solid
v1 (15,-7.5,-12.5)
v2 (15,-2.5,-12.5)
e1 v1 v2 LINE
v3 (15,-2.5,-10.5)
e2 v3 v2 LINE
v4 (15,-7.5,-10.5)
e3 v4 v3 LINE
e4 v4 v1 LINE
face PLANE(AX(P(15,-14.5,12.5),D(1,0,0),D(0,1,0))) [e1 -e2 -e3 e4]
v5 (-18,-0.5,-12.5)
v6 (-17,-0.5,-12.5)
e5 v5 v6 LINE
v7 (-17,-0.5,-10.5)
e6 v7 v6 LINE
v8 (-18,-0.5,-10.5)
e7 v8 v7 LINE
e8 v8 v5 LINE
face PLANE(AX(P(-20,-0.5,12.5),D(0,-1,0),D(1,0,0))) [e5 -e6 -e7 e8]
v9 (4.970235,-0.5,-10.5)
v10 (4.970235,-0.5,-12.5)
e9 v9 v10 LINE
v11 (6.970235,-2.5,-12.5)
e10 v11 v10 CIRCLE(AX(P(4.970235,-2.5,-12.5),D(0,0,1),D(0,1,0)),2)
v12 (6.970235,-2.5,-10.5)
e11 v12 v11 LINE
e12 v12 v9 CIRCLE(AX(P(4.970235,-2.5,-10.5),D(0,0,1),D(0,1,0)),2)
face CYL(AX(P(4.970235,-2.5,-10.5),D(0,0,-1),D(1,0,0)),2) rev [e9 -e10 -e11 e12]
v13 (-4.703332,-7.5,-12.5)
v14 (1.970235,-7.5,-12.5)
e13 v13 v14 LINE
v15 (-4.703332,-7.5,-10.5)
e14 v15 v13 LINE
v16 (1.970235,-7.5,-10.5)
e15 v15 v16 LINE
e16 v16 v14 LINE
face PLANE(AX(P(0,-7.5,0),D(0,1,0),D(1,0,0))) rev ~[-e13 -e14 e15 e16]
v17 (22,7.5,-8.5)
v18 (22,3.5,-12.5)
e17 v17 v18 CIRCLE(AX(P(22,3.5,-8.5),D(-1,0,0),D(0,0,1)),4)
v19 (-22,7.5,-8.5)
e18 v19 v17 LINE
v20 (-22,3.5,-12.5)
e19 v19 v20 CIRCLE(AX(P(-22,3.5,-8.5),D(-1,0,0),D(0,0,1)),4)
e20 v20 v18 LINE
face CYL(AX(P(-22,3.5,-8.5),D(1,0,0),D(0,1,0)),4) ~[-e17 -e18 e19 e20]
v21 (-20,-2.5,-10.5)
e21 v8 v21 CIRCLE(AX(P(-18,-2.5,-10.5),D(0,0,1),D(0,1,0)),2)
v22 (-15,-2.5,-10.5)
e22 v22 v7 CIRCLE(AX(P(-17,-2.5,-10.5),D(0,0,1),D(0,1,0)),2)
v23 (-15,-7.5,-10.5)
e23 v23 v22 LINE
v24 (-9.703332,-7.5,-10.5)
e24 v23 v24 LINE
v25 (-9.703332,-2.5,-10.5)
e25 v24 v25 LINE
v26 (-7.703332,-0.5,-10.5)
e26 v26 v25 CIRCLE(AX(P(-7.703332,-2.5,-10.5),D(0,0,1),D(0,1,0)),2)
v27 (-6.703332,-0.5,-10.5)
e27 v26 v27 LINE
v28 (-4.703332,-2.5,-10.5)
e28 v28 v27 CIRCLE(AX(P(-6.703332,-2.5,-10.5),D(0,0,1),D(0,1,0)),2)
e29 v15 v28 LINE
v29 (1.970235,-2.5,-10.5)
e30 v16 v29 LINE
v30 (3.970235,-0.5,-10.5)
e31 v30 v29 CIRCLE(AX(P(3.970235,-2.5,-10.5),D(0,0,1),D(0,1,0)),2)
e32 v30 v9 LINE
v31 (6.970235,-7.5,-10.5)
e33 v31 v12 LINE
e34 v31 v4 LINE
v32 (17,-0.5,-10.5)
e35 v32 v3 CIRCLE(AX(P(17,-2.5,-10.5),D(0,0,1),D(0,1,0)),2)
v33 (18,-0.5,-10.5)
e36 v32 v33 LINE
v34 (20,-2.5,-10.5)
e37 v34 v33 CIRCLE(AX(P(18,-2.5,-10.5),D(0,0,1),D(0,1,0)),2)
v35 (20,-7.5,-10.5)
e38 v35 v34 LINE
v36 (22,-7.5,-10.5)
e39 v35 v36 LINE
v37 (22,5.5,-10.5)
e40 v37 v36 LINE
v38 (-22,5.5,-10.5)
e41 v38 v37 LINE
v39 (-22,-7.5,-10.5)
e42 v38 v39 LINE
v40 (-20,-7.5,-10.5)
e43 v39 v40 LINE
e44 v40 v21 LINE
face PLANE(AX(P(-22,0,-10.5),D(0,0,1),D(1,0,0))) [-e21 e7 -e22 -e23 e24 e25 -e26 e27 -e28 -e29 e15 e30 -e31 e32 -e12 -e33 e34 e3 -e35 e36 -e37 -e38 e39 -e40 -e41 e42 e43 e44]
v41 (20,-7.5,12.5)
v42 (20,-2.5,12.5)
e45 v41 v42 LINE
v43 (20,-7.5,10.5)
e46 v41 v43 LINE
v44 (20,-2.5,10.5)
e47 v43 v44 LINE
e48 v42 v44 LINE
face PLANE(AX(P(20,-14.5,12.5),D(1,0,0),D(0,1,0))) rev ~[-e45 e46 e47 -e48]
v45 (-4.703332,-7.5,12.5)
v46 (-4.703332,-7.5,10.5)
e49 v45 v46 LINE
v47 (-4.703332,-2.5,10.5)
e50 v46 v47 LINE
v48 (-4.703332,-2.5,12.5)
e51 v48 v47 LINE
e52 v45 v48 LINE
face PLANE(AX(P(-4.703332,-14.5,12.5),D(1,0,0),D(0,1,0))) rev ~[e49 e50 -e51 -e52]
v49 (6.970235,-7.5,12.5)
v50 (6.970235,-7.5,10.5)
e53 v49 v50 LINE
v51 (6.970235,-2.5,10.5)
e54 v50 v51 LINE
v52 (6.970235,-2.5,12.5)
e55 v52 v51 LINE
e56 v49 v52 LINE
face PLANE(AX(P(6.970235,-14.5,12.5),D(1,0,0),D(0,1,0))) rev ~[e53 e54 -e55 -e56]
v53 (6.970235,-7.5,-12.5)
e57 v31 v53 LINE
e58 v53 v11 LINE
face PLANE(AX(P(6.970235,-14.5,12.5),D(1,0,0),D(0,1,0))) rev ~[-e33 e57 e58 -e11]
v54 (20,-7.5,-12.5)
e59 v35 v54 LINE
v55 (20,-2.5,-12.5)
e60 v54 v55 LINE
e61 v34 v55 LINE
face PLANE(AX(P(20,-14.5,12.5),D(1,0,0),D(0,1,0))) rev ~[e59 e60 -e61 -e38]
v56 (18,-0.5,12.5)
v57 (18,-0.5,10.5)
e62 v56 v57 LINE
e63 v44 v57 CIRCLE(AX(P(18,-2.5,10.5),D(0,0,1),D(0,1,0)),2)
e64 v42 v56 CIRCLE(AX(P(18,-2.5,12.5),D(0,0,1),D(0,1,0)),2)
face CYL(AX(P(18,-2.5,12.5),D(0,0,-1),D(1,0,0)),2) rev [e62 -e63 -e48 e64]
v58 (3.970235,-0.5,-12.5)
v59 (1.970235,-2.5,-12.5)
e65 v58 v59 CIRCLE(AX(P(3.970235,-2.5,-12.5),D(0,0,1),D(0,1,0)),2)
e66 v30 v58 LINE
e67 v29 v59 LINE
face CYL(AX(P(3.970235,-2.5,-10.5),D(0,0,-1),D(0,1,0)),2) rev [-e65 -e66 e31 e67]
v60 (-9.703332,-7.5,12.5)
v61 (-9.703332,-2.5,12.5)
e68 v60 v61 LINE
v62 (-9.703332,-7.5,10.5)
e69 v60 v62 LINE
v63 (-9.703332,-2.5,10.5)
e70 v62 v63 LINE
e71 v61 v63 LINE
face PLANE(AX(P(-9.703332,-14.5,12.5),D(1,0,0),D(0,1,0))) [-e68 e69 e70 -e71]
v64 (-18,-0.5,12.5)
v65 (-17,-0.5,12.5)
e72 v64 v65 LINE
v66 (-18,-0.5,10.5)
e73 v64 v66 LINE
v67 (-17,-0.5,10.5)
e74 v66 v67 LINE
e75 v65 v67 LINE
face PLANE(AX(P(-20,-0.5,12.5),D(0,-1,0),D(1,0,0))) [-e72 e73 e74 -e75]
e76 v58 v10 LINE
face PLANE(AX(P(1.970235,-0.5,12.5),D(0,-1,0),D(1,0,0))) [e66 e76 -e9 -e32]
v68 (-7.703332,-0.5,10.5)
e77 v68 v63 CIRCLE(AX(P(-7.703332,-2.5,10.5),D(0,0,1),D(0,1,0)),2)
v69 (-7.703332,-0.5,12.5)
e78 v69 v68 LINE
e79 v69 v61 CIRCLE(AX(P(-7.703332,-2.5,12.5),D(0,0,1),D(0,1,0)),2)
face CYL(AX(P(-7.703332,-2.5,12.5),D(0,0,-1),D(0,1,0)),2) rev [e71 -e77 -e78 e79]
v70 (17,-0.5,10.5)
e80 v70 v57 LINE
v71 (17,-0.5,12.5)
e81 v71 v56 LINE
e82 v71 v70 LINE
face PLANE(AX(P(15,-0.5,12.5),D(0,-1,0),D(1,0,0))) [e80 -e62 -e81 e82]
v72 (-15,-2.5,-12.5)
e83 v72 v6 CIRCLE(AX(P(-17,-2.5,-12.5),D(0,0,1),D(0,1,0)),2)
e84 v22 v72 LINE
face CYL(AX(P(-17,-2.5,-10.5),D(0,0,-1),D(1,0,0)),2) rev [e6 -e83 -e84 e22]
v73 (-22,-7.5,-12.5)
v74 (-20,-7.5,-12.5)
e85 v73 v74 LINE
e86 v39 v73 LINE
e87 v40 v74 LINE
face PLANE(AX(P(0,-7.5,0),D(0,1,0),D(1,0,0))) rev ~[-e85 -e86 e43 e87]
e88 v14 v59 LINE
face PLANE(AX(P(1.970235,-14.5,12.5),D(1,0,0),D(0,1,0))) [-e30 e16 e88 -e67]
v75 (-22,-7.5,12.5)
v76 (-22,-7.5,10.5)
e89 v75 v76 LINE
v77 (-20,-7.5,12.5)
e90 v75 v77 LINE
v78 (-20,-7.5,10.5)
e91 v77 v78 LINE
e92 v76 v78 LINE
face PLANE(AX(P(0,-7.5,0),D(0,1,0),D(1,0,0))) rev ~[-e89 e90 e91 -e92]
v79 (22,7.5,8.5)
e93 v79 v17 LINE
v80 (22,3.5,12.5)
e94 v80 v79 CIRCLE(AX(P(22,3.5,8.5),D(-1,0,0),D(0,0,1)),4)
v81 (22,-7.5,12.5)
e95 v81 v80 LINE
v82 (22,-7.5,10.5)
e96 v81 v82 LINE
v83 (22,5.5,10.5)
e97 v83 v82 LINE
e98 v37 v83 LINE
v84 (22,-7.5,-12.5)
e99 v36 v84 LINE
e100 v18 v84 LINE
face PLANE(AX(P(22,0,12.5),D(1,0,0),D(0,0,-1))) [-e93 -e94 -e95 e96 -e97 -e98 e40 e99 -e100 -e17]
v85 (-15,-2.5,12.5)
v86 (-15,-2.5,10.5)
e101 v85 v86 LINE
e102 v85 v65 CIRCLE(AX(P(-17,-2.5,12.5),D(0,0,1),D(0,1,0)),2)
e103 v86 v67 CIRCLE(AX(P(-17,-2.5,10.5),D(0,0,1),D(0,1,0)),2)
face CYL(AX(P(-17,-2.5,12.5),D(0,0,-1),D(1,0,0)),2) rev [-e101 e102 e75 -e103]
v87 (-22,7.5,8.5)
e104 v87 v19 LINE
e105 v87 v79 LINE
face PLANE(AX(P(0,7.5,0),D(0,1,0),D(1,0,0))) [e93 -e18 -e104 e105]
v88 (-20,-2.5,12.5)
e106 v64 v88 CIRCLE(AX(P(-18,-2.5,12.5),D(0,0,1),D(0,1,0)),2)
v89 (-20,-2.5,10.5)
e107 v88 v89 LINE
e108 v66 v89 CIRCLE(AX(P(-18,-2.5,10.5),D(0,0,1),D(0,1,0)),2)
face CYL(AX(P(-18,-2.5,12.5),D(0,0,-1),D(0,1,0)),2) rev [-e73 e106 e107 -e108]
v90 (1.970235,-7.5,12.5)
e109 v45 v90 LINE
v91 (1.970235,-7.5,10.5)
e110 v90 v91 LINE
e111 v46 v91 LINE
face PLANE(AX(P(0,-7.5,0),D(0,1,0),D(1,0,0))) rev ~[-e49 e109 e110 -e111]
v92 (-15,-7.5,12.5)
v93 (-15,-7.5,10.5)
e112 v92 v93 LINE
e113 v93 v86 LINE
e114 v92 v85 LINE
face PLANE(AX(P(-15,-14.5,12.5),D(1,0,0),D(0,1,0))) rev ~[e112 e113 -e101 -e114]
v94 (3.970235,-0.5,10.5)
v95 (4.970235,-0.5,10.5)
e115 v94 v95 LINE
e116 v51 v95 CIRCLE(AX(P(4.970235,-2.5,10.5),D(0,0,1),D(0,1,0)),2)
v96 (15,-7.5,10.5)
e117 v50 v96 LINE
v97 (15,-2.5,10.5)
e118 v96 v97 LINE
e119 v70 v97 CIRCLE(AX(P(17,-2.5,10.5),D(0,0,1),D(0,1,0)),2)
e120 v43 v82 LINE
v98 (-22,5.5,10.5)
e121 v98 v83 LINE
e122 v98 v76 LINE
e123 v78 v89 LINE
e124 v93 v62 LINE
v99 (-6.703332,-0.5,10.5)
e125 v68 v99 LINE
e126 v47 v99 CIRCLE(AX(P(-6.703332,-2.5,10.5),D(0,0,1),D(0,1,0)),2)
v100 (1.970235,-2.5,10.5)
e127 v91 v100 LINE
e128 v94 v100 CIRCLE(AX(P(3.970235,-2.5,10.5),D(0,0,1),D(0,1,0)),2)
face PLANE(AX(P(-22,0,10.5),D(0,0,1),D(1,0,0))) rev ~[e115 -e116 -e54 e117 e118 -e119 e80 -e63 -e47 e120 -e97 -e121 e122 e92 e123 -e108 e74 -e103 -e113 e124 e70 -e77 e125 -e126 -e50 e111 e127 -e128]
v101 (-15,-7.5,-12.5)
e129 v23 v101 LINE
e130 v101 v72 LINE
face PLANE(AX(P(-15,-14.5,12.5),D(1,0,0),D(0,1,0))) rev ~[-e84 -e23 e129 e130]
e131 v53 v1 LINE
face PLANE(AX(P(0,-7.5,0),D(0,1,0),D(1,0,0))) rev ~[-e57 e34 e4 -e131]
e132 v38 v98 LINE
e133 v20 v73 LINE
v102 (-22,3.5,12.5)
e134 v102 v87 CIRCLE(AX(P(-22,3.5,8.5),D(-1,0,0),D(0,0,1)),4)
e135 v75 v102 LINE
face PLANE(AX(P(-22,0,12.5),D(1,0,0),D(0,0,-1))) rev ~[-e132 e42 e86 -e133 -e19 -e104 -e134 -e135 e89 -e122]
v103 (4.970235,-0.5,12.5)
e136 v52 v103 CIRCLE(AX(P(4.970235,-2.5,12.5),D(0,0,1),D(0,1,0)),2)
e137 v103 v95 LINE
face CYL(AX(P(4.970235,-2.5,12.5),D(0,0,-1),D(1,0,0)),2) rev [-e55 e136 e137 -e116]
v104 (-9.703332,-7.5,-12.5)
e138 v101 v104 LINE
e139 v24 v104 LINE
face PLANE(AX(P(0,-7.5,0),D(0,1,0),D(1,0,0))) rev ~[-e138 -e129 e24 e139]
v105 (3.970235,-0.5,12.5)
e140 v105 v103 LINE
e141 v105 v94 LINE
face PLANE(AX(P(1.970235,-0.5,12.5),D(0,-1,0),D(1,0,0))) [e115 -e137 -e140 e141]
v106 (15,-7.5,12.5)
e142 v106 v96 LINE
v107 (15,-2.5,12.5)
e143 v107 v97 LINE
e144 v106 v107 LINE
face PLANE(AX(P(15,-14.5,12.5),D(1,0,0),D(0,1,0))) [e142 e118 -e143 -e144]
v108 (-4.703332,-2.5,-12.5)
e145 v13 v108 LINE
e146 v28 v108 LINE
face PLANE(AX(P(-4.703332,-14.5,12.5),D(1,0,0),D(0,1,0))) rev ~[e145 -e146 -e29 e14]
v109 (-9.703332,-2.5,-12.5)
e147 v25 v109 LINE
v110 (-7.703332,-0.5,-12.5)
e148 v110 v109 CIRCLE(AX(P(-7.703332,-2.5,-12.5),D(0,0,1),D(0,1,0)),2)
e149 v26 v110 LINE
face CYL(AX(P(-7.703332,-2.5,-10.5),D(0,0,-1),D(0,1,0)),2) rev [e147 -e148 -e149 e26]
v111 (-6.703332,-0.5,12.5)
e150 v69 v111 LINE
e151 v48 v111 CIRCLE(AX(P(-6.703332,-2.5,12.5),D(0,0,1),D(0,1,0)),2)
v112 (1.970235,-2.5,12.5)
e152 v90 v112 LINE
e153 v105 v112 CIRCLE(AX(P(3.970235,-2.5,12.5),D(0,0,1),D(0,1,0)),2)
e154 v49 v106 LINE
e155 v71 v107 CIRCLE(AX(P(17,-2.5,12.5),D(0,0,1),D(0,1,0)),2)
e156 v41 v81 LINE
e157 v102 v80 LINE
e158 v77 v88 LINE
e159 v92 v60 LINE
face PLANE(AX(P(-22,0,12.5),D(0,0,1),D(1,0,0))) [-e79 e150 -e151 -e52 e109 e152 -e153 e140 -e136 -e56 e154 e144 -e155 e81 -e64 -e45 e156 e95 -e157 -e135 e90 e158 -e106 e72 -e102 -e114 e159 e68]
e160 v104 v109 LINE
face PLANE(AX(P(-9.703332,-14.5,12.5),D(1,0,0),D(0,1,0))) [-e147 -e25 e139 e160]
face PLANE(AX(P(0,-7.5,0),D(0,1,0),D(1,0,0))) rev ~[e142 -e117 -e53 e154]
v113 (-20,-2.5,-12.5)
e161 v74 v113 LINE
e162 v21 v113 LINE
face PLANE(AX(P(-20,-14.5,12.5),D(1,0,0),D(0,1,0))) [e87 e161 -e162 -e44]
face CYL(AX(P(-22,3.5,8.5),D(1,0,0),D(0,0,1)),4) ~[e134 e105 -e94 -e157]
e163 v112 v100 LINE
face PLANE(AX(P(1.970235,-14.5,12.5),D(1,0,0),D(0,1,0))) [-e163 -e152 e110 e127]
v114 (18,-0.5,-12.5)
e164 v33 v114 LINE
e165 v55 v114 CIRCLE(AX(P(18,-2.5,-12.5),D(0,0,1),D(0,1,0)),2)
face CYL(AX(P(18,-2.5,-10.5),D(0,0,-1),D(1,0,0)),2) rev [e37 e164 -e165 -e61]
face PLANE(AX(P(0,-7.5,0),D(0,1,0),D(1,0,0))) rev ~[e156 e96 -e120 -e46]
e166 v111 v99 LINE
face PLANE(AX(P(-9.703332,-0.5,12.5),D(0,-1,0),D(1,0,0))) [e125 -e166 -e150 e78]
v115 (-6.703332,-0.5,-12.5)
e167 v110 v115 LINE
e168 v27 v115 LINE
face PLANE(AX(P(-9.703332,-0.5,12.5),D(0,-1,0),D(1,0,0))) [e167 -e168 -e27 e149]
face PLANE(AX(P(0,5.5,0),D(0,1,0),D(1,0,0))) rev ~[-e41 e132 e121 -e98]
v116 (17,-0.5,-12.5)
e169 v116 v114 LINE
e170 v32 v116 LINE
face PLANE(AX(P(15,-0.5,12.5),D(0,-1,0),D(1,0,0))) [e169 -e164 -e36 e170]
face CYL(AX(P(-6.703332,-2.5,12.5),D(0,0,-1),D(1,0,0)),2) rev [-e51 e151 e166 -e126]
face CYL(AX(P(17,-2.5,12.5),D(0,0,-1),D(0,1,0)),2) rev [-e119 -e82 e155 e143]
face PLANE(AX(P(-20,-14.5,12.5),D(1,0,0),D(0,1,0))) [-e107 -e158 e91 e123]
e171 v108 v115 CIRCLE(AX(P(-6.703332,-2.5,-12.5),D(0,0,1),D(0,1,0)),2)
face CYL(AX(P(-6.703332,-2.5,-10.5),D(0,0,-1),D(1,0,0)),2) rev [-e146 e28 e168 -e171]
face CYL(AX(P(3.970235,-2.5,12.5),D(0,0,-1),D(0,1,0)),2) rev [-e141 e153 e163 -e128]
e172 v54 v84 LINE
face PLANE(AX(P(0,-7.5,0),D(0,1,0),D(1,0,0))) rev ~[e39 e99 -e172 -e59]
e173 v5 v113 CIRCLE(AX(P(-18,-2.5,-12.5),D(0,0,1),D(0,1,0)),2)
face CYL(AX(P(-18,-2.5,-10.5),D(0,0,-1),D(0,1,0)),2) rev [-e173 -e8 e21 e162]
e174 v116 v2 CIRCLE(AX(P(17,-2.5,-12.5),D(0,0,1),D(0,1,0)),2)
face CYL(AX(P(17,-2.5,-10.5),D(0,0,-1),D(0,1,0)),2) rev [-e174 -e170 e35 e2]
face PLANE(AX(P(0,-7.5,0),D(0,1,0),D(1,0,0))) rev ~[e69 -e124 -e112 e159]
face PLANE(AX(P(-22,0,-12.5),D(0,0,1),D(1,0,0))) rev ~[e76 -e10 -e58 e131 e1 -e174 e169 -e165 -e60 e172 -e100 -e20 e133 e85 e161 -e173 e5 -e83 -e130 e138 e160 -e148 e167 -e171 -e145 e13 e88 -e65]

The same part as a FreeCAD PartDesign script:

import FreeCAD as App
import Part
import Sketcher
from FreeCAD import Vector
Q = App.Units.Quantity


def edges_at(feature, points):
    """Names of the edges that pass closest to the given points."""
    edges = feature.Shape.Edges
    near = lambda p: min(range(len(edges)), key=lambda i: edges[i].distToShape(Part.Vertex(*p))[0])
    return sorted({f"Edge{near(p) + 1}" for p in points})


def faces_at(feature, points):
    """Names of the faces that lie closest to the given points."""
    faces = feature.Shape.Faces
    near = lambda p: min(range(len(faces)), key=lambda i: faces[i].distToShape(Part.Vertex(*p))[0])
    return sorted({f"Face{near(p) + 1}" for p in points})


def add_polygon(sketch, points):
    """Adds a closed chain of lines whose ends are joined by coincident constraints."""
    first, n = sketch.GeometryCount, len(points)
    for a, b in zip(points, points[1:] + points[:1]):
        sketch.addGeometry(Part.LineSegment(App.Vector(*a, 0), App.Vector(*b, 0)), False)
    for i in range(n):
        sketch.addConstraint(Sketcher.Constraint("Coincident", first + i, 2, first + (i + 1) % n, 1))

doc = App.newDocument("Part")
body = doc.addObject("PartDesign::Body", "Body")

# Sketch on XZ plane
sketch1 = doc.addObject("Sketcher::SketchObject", "Sketch")
body.addObject(sketch1)
sketch1.AttachmentSupport = (doc.XZ_Plane, [""])
sketch1.MapMode = "FlatFace"
add_polygon(sketch1, [(-22, -12), (-22, 12), (22, 12), (22, -12)])  # lines 0-3
sketch1.addConstraint(Sketcher.Constraint("Vertical", 0))
sketch1.addConstraint(Sketcher.Constraint("Horizontal", 1))
sketch1.addConstraint(Sketcher.Constraint("Vertical", 2))
sketch1.addConstraint(Sketcher.Constraint("Horizontal", 3))
sketch1.addConstraint(Sketcher.Constraint("Symmetric", 0, 2, 2, 2, -1, 1))
sketch1.addConstraint(Sketcher.Constraint("DistanceX", 1, 1, 1, 2, Q("44 mm")))
sketch1.addConstraint(Sketcher.Constraint("DistanceY", 0, 1, 0, 2, Q("25 mm")))
pad1 = doc.addObject("PartDesign::Pad", "Pad")
body.addObject(pad1)
pad1.Profile = sketch1
pad1.Length = 15
pad1.Midplane = True
doc.recompute()

thickness = doc.addObject("PartDesign::Thickness", "Thickness")
body.addObject(thickness)
thickness.Base = (pad1, faces_at(pad1, [(0, -7.5, 0), (-22, 0, 0), (22, 0, 0)]))
thickness.Value = 2
thickness.Reversed = True
thickness.Join = "Intersection"

# Sketch on XY plane
sketch2 = doc.addObject("Sketcher::SketchObject", "Sketch001")
body.addObject(sketch2)
sketch2.AttachmentSupport = (doc.XY_Plane, [""])
sketch2.MapMode = "FlatFace"
sketch2.AttachmentOffset = App.Placement(Vector(0, 0, 12.5), App.Rotation())
add_polygon(sketch2, [(-10, 0), (-10, -14), (-5, -14), (-5, 0)])  # lines 0-3
add_polygon(sketch2, [(-20, 0), (-20, -14), (-15, -14), (-15, 0)])  # lines 4-7
add_polygon(sketch2, [(2, 0), (2, -14), (7, -14), (7, 0)])  # lines 8-11
add_polygon(sketch2, [(15, 0), (15, -14), (20, -14), (20, 0)])  # lines 12-15
sketch2.addConstraint(Sketcher.Constraint("Vertical", 0))
sketch2.addConstraint(Sketcher.Constraint("Horizontal", 1))
sketch2.addConstraint(Sketcher.Constraint("Vertical", 2))
sketch2.addConstraint(Sketcher.Constraint("Horizontal", 3))
sketch2.addConstraint(Sketcher.Constraint("Vertical", 4))
sketch2.addConstraint(Sketcher.Constraint("Horizontal", 5))
sketch2.addConstraint(Sketcher.Constraint("Vertical", 6))
sketch2.addConstraint(Sketcher.Constraint("Horizontal", 7))
sketch2.addConstraint(Sketcher.Constraint("Vertical", 8))
sketch2.addConstraint(Sketcher.Constraint("Horizontal", 9))
sketch2.addConstraint(Sketcher.Constraint("Vertical", 10))
sketch2.addConstraint(Sketcher.Constraint("Horizontal", 11))
sketch2.addConstraint(Sketcher.Constraint("Vertical", 12))
sketch2.addConstraint(Sketcher.Constraint("Horizontal", 13))
sketch2.addConstraint(Sketcher.Constraint("Vertical", 14))
sketch2.addConstraint(Sketcher.Constraint("Horizontal", 15))
sketch2.addConstraint(Sketcher.Constraint("Symmetric", 5, 2, 12, 2, -2))
sketch2.addConstraint(Sketcher.Constraint("Symmetric", 7, 2, 14, 2, -2))
sketch2.addConstraint(Sketcher.Constraint("Horizontal", 1, 2, 4, 2))
sketch2.addConstraint(Sketcher.Constraint("Horizontal", 3, 2, 6, 2))
sketch2.addConstraint(Sketcher.Constraint("Horizontal", 5, 2, 8, 2))
sketch2.addConstraint(Sketcher.Constraint("Horizontal", 7, 2, 10, 2))
sketch2.addConstraint(Sketcher.Constraint("Equal", 3, 5))
sketch2.addConstraint(Sketcher.Constraint("Equal", 7, 9))
sketch2.addConstraint(Sketcher.Constraint("DistanceX", 1, 1, 1, 2, Q("5 mm")))
sketch2.addConstraint(Sketcher.Constraint("DistanceY", 0, 2, 0, 1, Q("14 mm")))
sketch2.addConstraint(Sketcher.Constraint("DistanceX", 4, 2, -1, 1, Q("20 mm")))
sketch2.addConstraint(Sketcher.Constraint("DistanceY", 0, 2, -1, 1, Q("14.5 mm")))
sketch2.addConstraint(Sketcher.Constraint("DistanceX", 0, 2, -1, 1, Q("9.703332 mm")))
sketch2.addConstraint(Sketcher.Constraint("DistanceX", -1, 1, 8, 2, Q("1.970235 mm")))
pocket1 = doc.addObject("PartDesign::Pocket", "Pocket")
body.addObject(pocket1)
pocket1.Profile = sketch2
pocket1.Type = "ThroughAll"
doc.recompute()

fillet = doc.addObject("PartDesign::Fillet", "Fillet")
body.addObject(fillet)
fillet.Base = (pocket1, edges_at(pocket1, [
    (20, -0.5, -11.5),
    (15, -0.5, -11.5),
    (20, -0.5, 11.5),
    (15, -0.5, 11.5),
    (-15, -0.5, -11.5),
    (-20, -0.5, -11.5),
    (-15, -0.5, 11.5),
    (-20, -0.5, 11.5),
    (-4.703, -0.5, -11.5),
    (-9.703, -0.5, -11.5),
    (-4.703, -0.5, 11.5),
    (-9.703, -0.5, 11.5),
    (6.97, -0.5, -11.5),
    (1.97, -0.5, -11.5),
    (6.97, -0.5, 11.5),
    (1.97, -0.5, 11.5),
]))
fillet.Radius = 2
doc.recompute()

fillet2 = doc.addObject("PartDesign::Fillet", "Fillet001")
body.addObject(fillet2)
fillet2.Base = (fillet, edges_at(fillet, [(0, 7.5, 12.5), (0, 7.5, -12.5)]))
fillet2.Radius = 4

doc.recompute()
